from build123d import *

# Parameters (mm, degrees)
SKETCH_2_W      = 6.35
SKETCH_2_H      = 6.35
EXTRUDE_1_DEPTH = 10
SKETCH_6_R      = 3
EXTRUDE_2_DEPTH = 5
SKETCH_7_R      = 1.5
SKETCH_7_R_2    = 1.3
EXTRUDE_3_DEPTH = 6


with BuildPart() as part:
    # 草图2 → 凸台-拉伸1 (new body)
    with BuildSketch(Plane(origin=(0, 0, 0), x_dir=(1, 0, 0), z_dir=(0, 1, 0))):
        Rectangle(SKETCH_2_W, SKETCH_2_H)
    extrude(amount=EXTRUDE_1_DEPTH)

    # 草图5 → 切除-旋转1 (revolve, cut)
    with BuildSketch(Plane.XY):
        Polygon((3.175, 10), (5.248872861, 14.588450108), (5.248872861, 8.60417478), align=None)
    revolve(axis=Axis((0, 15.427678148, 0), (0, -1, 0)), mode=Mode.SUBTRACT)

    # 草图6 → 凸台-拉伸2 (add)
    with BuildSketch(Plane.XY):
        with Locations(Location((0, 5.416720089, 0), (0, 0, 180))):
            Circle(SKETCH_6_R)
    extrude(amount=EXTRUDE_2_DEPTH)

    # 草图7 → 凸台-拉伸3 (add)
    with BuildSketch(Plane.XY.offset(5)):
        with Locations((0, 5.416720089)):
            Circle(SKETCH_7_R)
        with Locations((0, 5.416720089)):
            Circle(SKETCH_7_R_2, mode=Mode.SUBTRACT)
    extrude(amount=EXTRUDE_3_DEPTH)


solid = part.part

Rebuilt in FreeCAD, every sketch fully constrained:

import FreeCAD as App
import Part
import Sketcher
Q = App.Units.Quantity


def add_polygon(sketch, points):
    """Adds a closed chain of lines whose ends are joined by coincident constraints."""
    first, n = sketch.GeometryCount, len(points)
    for a, b in zip(points, points[1:] + points[:1]):
        sketch.addGeometry(Part.LineSegment(App.Vector(*a, 0), App.Vector(*b, 0)), False)
    for i in range(n):
        sketch.addConstraint(Sketcher.Constraint("Coincident", first + i, 2, first + (i + 1) % n, 1))

doc = App.newDocument("Part")
body = doc.addObject("PartDesign::Body", "Body")

# Sketch on XZ plane
sketch1 = body.newObject("Sketcher::SketchObject", "Sketch")
sketch1.AttachmentSupport = (doc.getObject("XZ_Plane"), [""])
sketch1.MapMode = "FlatFace"
add_polygon(sketch1, [(-3.175, -3.175), (-3.175, 3.175), (3.175, 3.175), (3.175, -3.175)])  # lines 0-3
sketch1.addConstraint([
    Sketcher.Constraint("Vertical", 0),
    Sketcher.Constraint("Horizontal", 1),
    Sketcher.Constraint("Vertical", 2),
    Sketcher.Constraint("Horizontal", 3),
    Sketcher.Constraint("Symmetric", 0, 2, 2, 2, -1, 1),
    Sketcher.Constraint("Equal", 3, 0),
    Sketcher.Constraint("DistanceX", 1, 1, 1, 2, Q("6.35 mm")),
])
pad1 = body.newObject("PartDesign::Pad", "Pad")
pad1.Profile = sketch1
pad1.Length = 10
pad1.Reversed = True

# Sketch on XY plane
sketch2 = body.newObject("Sketcher::SketchObject", "Sketch001")
sketch2.AttachmentSupport = (doc.getObject("XY_Plane"), [""])
sketch2.MapMode = "FlatFace"
add_polygon(sketch2, [(5.248873, 14.58845), (3.175, 10), (5.248873, 8.604175)])  # lines 0-2
sketch2.addConstraint([
    Sketcher.Constraint("Vertical", 2),
    Sketcher.Constraint("DistanceY", -1, 1, 0, 2, Q("10 mm")),
    Sketcher.Constraint("DistanceX", -1, 1, 0, 2, Q("3.175 mm")),
    Sketcher.Constraint("DistanceY", 2, 1, 2, 2, Q("5.984275 mm")),
    Sketcher.Constraint("DistanceY", -1, 1, 2, 2, Q("14.58845 mm")),
    Sketcher.Constraint("Distance", 0, Q("5.035357 mm")),
])
groove = body.newObject("PartDesign::Groove", "Groove")
groove.Profile = sketch2
groove.ReferenceAxis = (sketch2, ["V_Axis"])
groove.Angle = 360

# Sketch on XY plane
sketch3 = body.newObject("Sketcher::SketchObject", "Sketch002")
sketch3.AttachmentSupport = (doc.getObject("XY_Plane"), [""])
sketch3.MapMode = "FlatFace"
sketch3.addGeometry(Part.Circle(App.Vector(0, 5.41672, 0), App.Vector(0, 0, 1), 3), False)
sketch3.addConstraint([
    Sketcher.Constraint("PointOnObject", 0, 3, -2),
    Sketcher.Constraint("Diameter", 0, Q("6 mm")),
    Sketcher.Constraint("DistanceY", -1, 1, 0, 3, Q("5.41672 mm")),
])
pad2 = body.newObject("PartDesign::Pad", "Pad001")
pad2.Profile = sketch3
pad2.Length = 5

# Sketch on XY plane
sketch4 = body.newObject("Sketcher::SketchObject", "Sketch003")
sketch4.AttachmentSupport = (doc.getObject("XY_Plane"), [""])
sketch4.MapMode = "FlatFace"
sketch4.AttachmentOffset = App.Placement(App.Vector(0, 0, 5), App.Rotation())
sketch4.addGeometry([
    Part.Circle(App.Vector(0, 5.41672, 0), App.Vector(0, 0, 1), 1.5),
    Part.Circle(App.Vector(0, 5.41672, 0), App.Vector(0, 0, 1), 1.3),
], False)
sketch4.addConstraint([
    Sketcher.Constraint("Coincident", 1, 3, 0, 3),
    Sketcher.Constraint("PointOnObject", 0, 3, -2),
    Sketcher.Constraint("Diameter", 0, Q("3 mm")),
    Sketcher.Constraint("Diameter", 1, Q("2.6 mm")),
    Sketcher.Constraint("DistanceY", -1, 1, 0, 3, Q("5.41672 mm")),
])
pad3 = body.newObject("PartDesign::Pad", "Pad002")
pad3.Profile = sketch4
pad3.Length = 6

doc.recompute()
